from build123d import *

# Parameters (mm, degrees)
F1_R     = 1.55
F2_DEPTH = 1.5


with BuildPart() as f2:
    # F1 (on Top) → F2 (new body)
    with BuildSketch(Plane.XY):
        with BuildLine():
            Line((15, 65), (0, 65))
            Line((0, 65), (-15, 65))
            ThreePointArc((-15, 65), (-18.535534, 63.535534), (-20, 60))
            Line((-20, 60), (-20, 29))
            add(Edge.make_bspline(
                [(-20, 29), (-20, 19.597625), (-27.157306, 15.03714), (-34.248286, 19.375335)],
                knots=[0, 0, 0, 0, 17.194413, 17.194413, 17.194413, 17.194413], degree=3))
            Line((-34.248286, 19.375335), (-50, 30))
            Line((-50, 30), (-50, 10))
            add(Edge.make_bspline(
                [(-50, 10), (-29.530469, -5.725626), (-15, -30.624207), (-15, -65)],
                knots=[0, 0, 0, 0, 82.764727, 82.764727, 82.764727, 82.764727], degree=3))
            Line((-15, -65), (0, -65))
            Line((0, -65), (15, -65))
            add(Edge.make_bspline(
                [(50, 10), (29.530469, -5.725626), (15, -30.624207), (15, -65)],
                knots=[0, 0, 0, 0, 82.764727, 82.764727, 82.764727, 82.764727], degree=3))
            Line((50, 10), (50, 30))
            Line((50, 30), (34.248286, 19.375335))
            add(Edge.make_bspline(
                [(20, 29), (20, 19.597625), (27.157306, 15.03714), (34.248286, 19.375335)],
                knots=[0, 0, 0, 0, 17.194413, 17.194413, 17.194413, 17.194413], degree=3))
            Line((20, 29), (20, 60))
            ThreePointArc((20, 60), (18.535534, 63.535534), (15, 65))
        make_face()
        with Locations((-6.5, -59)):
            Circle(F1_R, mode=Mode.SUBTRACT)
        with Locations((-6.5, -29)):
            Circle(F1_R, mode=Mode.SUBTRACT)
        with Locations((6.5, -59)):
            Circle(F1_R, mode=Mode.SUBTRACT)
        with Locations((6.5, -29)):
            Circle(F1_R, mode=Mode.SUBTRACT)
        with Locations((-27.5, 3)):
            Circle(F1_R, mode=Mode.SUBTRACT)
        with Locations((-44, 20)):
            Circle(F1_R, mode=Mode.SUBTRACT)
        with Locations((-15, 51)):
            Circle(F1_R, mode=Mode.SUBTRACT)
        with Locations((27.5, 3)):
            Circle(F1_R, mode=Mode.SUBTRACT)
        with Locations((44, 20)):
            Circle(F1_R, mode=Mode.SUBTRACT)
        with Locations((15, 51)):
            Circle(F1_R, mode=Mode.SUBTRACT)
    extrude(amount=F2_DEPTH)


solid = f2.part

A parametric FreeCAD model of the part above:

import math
import FreeCAD as App
import Part
import Sketcher

doc = App.newDocument("Part")
body = doc.addObject("PartDesign::Body", "Body")

# Sketch on XY plane
sketch1 = doc.addObject("Sketcher::SketchObject", "Sketch")
body.addObject(sketch1)
sketch1.AttachmentSupport = (doc.XY_Plane, [""])
sketch1.MapMode = "FlatFace"
sketch1.addGeometry(Part.LineSegment(App.Vector(15, 65, 0), App.Vector(-15, 65, 0)), False)
sketch1.addGeometry(Part.ArcOfCircle(Part.Circle(App.Vector(-15, 60, 0), App.Vector(0, 0, 1), 5), math.radians(89.999996), math.radians(180.000004)), False)
sketch1.addGeometry(Part.LineSegment(App.Vector(-20, 60, 0), App.Vector(-20, 29, 0)), False)
sketch1.addGeometry(Part.BSplineCurve([App.Vector(-20, 29, 0), App.Vector(-20, 19.597625, 0), App.Vector(-27.157306, 15.03714, 0), App.Vector(-34.248286, 19.375335, 0)], [4, 4], [0, 17.194413], False, 3, [1, 1, 1, 1], False), False)
sketch1.addGeometry(Part.LineSegment(App.Vector(-34.248286, 19.375335, 0), App.Vector(-50, 30, 0)), False)
sketch1.addGeometry(Part.LineSegment(App.Vector(-50, 30, 0), App.Vector(-50, 10, 0)), False)
sketch1.addGeometry(Part.BSplineCurve([App.Vector(-50, 10, 0), App.Vector(-29.530469, -5.725626, 0), App.Vector(-15, -30.624207, 0), App.Vector(-15, -65, 0)], [4, 4], [0, 82.764727], False, 3, [1, 1, 1, 1], False), False)
sketch1.addGeometry(Part.LineSegment(App.Vector(-15, -65, 0), App.Vector(15, -65, 0)), False)
sketch1.addGeometry(Part.BSplineCurve([App.Vector(50, 10, 0), App.Vector(29.530469, -5.725626, 0), App.Vector(15, -30.624207, 0), App.Vector(15, -65, 0)], [4, 4], [0, 82.764727], False, 3, [1, 1, 1, 1], False), False)
sketch1.addGeometry(Part.LineSegment(App.Vector(50, 10, 0), App.Vector(50, 30, 0)), False)
sketch1.addGeometry(Part.LineSegment(App.Vector(50, 30, 0), App.Vector(34.248286, 19.375335, 0)), False)
sketch1.addGeometry(Part.BSplineCurve([App.Vector(20, 29, 0), App.Vector(20, 19.597625, 0), App.Vector(27.157306, 15.03714, 0), App.Vector(34.248286, 19.375335, 0)], [4, 4], [0, 17.194413], False, 3, [1, 1, 1, 1], False), False)
sketch1.addGeometry(Part.LineSegment(App.Vector(20, 29, 0), App.Vector(20, 60, 0)), False)
sketch1.addGeometry(Part.ArcOfCircle(Part.Circle(App.Vector(15, 60, 0), App.Vector(0, 0, 1), 5), math.radians(-0.000004), math.radians(90.000004)), False)
sketch1.addGeometry(Part.Circle(App.Vector(-6.5, -59, 0), App.Vector(0, 0, 1), 1.55), False)
sketch1.addGeometry(Part.Circle(App.Vector(-6.5, -29, 0), App.Vector(0, 0, 1), 1.55), False)
sketch1.addGeometry(Part.Circle(App.Vector(6.5, -59, 0), App.Vector(0, 0, 1), 1.55), False)
sketch1.addGeometry(Part.Circle(App.Vector(6.5, -29, 0), App.Vector(0, 0, 1), 1.55), False)
sketch1.addGeometry(Part.Circle(App.Vector(-27.5, 3, 0), App.Vector(0, 0, 1), 1.55), False)
sketch1.addGeometry(Part.Circle(App.Vector(-44, 20, 0), App.Vector(0, 0, 1), 1.55), False)
sketch1.addGeometry(Part.Circle(App.Vector(-15, 51, 0), App.Vector(0, 0, 1), 1.55), False)
sketch1.addGeometry(Part.Circle(App.Vector(27.5, 3, 0), App.Vector(0, 0, 1), 1.55), False)
sketch1.addGeometry(Part.Circle(App.Vector(44, 20, 0), App.Vector(0, 0, 1), 1.55), False)
sketch1.addGeometry(Part.Circle(App.Vector(15, 51, 0), App.Vector(0, 0, 1), 1.55), False)
sketch1.addConstraint(Sketcher.Constraint("Block", 3))
sketch1.addConstraint(Sketcher.Constraint("Block", 6))
sketch1.addConstraint(Sketcher.Constraint("Block", 8))
sketch1.addConstraint(Sketcher.Constraint("Block", 11))
sketch1.addConstraint(Sketcher.Constraint("Coincident", 0, 2, 1, 1))
sketch1.addConstraint(Sketcher.Constraint("Coincident", 1, 2, 2, 1))
sketch1.addConstraint(Sketcher.Constraint("Coincident", 2, 2, 3, 1))
sketch1.addConstraint(Sketcher.Constraint("Coincident", 3, 2, 4, 1))
sketch1.addConstraint(Sketcher.Constraint("Coincident", 4, 2, 5, 1))
sketch1.addConstraint(Sketcher.Constraint("Coincident", 5, 2, 6, 1))
sketch1.addConstraint(Sketcher.Constraint("Coincident", 6, 2, 7, 1))
sketch1.addConstraint(Sketcher.Constraint("Coincident", 7, 2, 8, 2))
sketch1.addConstraint(Sketcher.Constraint("Coincident", 8, 1, 9, 1))
sketch1.addConstraint(Sketcher.Constraint("Coincident", 9, 2, 10, 1))
sketch1.addConstraint(Sketcher.Constraint("Coincident", 10, 2, 11, 2))
sketch1.addConstraint(Sketcher.Constraint("Coincident", 11, 1, 12, 1))
sketch1.addConstraint(Sketcher.Constraint("Coincident", 12, 2, 13, 1))
sketch1.addConstraint(Sketcher.Constraint("Coincident", 13, 2, 0, 1))
sketch1.addConstraint(Sketcher.Constraint("Horizontal", 0))
sketch1.addConstraint(Sketcher.Constraint("Vertical", 2))
sketch1.addConstraint(Sketcher.Constraint("Vertical", 5))
sketch1.addConstraint(Sketcher.Constraint("Vertical", 9))
sketch1.addConstraint(Sketcher.Constraint("Vertical", 12))
sketch1.addConstraint(Sketcher.Constraint("Radius", 1, 5.0))
sketch1.addConstraint(Sketcher.Constraint("Radius", 13, 5.0))
sketch1.addConstraint(Sketcher.Constraint("Diameter", 14, 3.1))
sketch1.addConstraint(Sketcher.Constraint("Diameter", 15, 3.1))
sketch1.addConstraint(Sketcher.Constraint("Diameter", 16, 3.1))
sketch1.addConstraint(Sketcher.Constraint("Diameter", 17, 3.1))
sketch1.addConstraint(Sketcher.Constraint("Diameter", 18, 3.1))
sketch1.addConstraint(Sketcher.Constraint("Diameter", 19, 3.1))
sketch1.addConstraint(Sketcher.Constraint("Diameter", 20, 3.1))
sketch1.addConstraint(Sketcher.Constraint("Diameter", 21, 3.1))
sketch1.addConstraint(Sketcher.Constraint("Diameter", 22, 3.1))
sketch1.addConstraint(Sketcher.Constraint("Diameter", 23, 3.1))
sketch1.addConstraint(Sketcher.Constraint("DistanceX", 0, 2, 0, 1, 30.0))
sketch1.addConstraint(Sketcher.Constraint("DistanceY", 2, 2, 2, 1, 31.0))
sketch1.addConstraint(Sketcher.Constraint("DistanceY", 5, 2, 5, 1, 20.0))
sketch1.addConstraint(Sketcher.Constraint("DistanceY", 9, 1, 9, 2, 20.0))
sketch1.addConstraint(Sketcher.Constraint("DistanceY", 12, 1, 12, 2, 31.0))
sketch1.addConstraint(Sketcher.Constraint("DistanceY", -1, 1, 1, 3, 60.0))
sketch1.addConstraint(Sketcher.Constraint("DistanceY", 14, 3, -1, 1, 59.0))
sketch1.addConstraint(Sketcher.Constraint("DistanceY", 15, 3, -1, 1, 29.0))
sketch1.addConstraint(Sketcher.Constraint("DistanceY", 16, 3, -1, 1, 59.0))
sketch1.addConstraint(Sketcher.Constraint("DistanceY", 17, 3, -1, 1, 29.0))
sketch1.addConstraint(Sketcher.Constraint("DistanceY", -1, 1, 18, 3, 3.0))
sketch1.addConstraint(Sketcher.Constraint("DistanceX", 19, 3, -1, 1, 44.0))
sketch1.addConstraint(Sketcher.Constraint("DistanceY", -1, 1, 19, 3, 20.0))
sketch1.addConstraint(Sketcher.Constraint("DistanceX", 20, 3, -1, 1, 15.0))
sketch1.addConstraint(Sketcher.Constraint("DistanceY", -1, 1, 20, 3, 51.0))
sketch1.addConstraint(Sketcher.Constraint("DistanceY", -1, 1, 21, 3, 3.0))
sketch1.addConstraint(Sketcher.Constraint("DistanceX", -1, 1, 22, 3, 44.0))
sketch1.addConstraint(Sketcher.Constraint("DistanceY", -1, 1, 22, 3, 20.0))
sketch1.addConstraint(Sketcher.Constraint("DistanceX", -1, 1, 23, 3, 15.0))
sketch1.addConstraint(Sketcher.Constraint("DistanceY", -1, 1, 23, 3, 51.0))
sketch1.addConstraint(Sketcher.Constraint("DistanceX", 0, 2, -1, 1, 15.0))
sketch1.addConstraint(Sketcher.Constraint("DistanceX", 14, 3, 16, 3, 13.0))
sketch1.addConstraint(Sketcher.Constraint("DistanceX", 15, 3, 16, 3, 13.0))
sketch1.addConstraint(Sketcher.Constraint("DistanceX", 15, 3, 17, 3, 13.0))
sketch1.addConstraint(Sketcher.Constraint("DistanceX", 18, 3, 15, 3, 21.0))
sketch1.addConstraint(Sketcher.Constraint("DistanceX", 17, 3, 21, 3, 21.0))
sketch1.addConstraint(Sketcher.Constraint("DistanceX", 14, 3, -1, 1, 6.5))
pad1 = doc.addObject("PartDesign::Pad", "Pad")
body.addObject(pad1)
pad1.Profile = sketch1
pad1.Length = 1.5

doc.recompute()
